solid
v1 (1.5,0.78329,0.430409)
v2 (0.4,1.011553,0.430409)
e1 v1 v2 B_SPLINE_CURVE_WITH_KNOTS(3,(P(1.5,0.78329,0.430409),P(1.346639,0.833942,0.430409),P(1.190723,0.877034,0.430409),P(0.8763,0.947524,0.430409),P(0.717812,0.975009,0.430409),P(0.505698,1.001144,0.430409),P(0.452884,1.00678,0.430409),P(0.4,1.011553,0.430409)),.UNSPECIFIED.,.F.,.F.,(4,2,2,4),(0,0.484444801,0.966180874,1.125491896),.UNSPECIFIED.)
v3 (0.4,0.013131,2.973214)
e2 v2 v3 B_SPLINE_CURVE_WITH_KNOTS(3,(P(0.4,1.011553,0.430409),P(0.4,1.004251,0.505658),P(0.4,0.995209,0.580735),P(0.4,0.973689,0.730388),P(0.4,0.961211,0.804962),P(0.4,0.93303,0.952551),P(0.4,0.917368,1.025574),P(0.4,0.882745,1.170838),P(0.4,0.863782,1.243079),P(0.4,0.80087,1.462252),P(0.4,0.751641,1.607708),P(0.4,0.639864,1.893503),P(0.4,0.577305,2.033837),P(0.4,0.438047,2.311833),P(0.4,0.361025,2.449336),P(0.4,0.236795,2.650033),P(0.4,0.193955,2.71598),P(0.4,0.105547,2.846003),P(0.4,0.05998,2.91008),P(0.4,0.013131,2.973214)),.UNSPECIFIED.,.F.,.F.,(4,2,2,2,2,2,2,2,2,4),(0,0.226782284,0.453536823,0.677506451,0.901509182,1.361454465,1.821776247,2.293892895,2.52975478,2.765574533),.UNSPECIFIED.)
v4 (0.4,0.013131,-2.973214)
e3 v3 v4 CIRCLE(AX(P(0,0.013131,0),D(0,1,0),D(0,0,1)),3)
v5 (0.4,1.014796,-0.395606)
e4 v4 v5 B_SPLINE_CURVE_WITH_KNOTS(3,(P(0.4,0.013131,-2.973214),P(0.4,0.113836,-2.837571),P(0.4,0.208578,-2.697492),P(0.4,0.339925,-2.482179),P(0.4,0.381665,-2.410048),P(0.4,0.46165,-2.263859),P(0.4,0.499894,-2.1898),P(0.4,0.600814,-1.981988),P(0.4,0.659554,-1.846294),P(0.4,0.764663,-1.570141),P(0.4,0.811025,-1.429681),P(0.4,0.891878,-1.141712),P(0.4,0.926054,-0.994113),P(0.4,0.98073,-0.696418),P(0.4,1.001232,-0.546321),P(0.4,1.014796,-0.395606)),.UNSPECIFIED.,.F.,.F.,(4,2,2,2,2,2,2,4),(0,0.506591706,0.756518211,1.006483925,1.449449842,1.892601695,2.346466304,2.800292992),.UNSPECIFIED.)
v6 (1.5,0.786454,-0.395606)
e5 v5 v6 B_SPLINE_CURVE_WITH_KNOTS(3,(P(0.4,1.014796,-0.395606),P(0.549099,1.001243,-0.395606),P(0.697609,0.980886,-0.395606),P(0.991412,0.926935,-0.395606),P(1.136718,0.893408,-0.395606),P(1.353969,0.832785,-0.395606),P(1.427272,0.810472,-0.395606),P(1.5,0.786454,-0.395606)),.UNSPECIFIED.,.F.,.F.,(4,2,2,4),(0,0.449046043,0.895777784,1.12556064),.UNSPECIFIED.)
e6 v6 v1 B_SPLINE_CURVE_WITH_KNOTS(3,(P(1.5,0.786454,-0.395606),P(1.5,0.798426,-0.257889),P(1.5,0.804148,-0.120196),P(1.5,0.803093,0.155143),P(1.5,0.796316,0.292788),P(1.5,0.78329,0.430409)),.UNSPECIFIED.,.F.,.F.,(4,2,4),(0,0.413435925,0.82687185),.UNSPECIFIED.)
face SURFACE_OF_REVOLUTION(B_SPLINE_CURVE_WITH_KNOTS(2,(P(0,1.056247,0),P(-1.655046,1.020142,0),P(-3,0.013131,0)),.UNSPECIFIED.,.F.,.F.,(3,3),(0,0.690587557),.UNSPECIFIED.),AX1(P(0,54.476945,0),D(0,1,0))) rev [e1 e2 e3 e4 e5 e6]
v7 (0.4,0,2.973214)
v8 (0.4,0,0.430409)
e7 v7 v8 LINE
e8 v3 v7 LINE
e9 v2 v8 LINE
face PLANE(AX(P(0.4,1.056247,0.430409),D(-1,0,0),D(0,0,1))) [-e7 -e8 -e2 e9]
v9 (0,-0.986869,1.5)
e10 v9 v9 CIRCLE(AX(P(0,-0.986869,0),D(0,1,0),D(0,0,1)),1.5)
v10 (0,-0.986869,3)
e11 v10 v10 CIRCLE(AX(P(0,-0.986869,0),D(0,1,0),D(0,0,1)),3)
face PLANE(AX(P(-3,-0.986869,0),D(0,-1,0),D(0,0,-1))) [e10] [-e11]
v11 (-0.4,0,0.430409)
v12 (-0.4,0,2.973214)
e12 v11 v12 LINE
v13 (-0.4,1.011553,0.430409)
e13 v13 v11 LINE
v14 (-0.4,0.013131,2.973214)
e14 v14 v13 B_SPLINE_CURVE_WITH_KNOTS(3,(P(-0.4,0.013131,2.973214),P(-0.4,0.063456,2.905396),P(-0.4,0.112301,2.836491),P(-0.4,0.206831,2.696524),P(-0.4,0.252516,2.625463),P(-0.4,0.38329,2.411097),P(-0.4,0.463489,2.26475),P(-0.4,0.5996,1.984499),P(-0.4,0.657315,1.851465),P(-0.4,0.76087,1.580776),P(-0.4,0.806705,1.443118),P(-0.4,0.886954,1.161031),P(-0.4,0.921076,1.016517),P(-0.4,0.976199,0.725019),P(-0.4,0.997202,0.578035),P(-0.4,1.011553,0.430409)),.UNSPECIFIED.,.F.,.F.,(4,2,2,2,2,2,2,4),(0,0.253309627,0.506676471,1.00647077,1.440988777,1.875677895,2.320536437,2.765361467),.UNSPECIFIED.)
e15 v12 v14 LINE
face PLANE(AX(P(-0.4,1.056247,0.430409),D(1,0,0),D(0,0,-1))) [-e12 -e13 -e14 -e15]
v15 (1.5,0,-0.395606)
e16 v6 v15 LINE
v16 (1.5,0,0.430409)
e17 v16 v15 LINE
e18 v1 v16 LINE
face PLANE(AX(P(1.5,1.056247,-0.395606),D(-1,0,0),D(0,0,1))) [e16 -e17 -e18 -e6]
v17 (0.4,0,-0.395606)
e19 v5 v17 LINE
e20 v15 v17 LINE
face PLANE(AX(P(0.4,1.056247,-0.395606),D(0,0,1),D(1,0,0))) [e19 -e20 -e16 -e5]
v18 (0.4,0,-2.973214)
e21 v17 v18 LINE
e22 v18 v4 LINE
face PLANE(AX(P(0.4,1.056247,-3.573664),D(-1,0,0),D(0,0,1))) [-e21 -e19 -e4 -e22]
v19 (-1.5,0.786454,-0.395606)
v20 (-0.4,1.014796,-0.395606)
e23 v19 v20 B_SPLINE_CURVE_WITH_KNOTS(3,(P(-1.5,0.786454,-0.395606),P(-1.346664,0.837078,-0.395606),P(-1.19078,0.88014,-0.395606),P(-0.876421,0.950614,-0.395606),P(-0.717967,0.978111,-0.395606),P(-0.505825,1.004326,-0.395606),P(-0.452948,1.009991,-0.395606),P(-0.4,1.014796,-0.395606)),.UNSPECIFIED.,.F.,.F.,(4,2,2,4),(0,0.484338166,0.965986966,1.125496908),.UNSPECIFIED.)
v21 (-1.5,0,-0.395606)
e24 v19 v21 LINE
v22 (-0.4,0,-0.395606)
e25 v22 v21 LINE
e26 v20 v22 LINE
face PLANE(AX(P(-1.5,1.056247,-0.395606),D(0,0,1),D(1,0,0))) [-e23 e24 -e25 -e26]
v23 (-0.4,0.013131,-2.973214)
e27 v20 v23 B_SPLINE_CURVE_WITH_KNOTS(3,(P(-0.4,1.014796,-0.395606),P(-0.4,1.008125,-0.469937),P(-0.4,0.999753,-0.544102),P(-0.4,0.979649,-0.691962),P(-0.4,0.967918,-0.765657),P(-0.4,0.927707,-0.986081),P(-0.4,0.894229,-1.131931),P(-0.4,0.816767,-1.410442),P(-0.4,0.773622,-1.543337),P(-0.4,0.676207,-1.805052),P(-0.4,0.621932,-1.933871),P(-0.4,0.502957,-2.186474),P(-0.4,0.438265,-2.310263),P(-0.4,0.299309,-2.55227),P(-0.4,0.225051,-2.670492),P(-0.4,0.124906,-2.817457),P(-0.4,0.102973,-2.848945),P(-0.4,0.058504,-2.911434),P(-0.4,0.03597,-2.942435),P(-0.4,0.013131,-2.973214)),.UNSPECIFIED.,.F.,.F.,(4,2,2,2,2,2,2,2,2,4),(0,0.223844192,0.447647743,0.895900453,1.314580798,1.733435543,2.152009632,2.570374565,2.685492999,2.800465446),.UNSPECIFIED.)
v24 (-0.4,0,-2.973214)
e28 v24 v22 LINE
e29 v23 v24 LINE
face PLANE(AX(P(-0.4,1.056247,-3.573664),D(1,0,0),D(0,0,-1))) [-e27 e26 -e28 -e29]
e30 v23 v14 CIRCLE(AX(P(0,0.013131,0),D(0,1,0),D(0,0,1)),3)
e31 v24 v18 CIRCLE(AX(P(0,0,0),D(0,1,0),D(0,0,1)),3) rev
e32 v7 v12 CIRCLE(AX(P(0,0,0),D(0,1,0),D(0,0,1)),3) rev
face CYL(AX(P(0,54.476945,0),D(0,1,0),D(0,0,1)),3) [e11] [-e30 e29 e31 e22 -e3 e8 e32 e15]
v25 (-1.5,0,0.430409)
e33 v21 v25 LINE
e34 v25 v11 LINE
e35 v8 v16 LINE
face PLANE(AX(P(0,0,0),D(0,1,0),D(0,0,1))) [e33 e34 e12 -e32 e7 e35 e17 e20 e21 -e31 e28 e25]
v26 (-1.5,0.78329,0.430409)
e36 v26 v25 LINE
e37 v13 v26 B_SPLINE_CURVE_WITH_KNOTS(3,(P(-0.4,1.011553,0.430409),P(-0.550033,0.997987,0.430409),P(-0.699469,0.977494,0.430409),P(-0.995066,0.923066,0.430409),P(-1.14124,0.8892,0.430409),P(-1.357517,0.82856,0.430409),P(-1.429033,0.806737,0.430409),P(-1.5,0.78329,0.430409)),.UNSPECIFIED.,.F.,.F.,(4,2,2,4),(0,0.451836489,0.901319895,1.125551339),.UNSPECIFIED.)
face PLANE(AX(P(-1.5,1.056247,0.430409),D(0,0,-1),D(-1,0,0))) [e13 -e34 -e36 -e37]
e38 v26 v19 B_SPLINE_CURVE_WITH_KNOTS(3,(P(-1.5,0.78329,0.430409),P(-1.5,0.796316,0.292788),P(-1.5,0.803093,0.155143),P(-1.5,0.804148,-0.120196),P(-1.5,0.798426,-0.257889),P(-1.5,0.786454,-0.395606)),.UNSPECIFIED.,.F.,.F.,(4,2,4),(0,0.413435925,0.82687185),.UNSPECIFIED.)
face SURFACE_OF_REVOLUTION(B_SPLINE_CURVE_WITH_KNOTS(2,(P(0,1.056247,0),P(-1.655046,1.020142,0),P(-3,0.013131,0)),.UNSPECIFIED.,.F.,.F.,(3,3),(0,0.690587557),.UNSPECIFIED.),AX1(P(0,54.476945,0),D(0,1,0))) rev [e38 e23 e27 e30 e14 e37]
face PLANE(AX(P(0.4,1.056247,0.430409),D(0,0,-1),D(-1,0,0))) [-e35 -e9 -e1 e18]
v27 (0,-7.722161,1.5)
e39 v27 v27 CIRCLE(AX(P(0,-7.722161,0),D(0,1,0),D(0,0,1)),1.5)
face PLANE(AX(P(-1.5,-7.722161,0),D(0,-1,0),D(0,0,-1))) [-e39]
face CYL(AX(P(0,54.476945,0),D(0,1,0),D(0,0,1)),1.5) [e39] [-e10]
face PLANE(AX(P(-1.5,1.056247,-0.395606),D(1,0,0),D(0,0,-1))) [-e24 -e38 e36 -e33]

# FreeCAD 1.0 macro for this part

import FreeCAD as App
import Part
import Sketcher

V = App.Vector


def add_polygon(sketch, points):
    """Adds a closed chain of lines whose ends are joined by coincident constraints."""
    first, n = sketch.GeometryCount, len(points)
    for a, b in zip(points, points[1:] + points[:1]):
        sketch.addGeometry(Part.LineSegment(App.Vector(*a, 0), App.Vector(*b, 0)), False)
    for i in range(n):
        sketch.addConstraint(Sketcher.Constraint("Coincident", first + i, 2, first + (i + 1) % n, 1))

doc = App.newDocument("Part")
body = doc.addObject("PartDesign::Body", "Body")

sketch1 = body.newObject("Sketcher::SketchObject", "Sketch")
sketch1.AttachmentSupport = (doc.getObject("XY_Plane"), [""])
sketch1.MapMode = "FlatFace"
sketch1.addGeometry([
    Part.LineSegment(V(-3, -0.986869, 0), V(-1.5, -0.986869, 0)),
    Part.LineSegment(V(-1.5, -0.986869, 0), V(-1.5, -7.722161, 0)),
    Part.LineSegment(V(-1.5, -7.722161, 0), V(0, -7.722161, 0)),
    Part.LineSegment(V(0, -7.722161, 0), V(0, 1.056247, 0)),
    Part.BSplineCurve([V(-3, 0.013131, 0), V(-1.655046, 1.020142, 0), V(0, 1.056247, 0)], [3, 3], [0, 0.690587557], False, 2, [1, 1, 1], False),
    Part.LineSegment(V(-3, 0.013131, 0), V(-3, -0.986869, 0)),
], False)
sketch1.addConstraint([
    Sketcher.Constraint("Block", 4),
    Sketcher.Constraint("Coincident", 0, 2, 1, 1),
    Sketcher.Constraint("Coincident", 1, 2, 2, 1),
    Sketcher.Constraint("Coincident", 2, 2, 3, 1),
    Sketcher.Constraint("Coincident", 3, 2, 4, 2),
    Sketcher.Constraint("Coincident", 4, 1, 5, 1),
    Sketcher.Constraint("Coincident", 5, 2, 0, 1),
    Sketcher.Constraint("Horizontal", 0),
    Sketcher.Constraint("Vertical", 1),
    Sketcher.Constraint("Horizontal", 2),
    Sketcher.Constraint("Vertical", 3),
    Sketcher.Constraint("Vertical", 5),
    Sketcher.Constraint("Equal", 0, 2),
    Sketcher.Constraint("DistanceY", 5, 2, 5, 1, 1.0),
    Sketcher.Constraint("DistanceY", 3, 1, 3, 2, 8.778408),
])
revolution = body.newObject("PartDesign::Revolution", "Revolution")
revolution.Profile = sketch1
revolution.ReferenceAxis = (sketch1, ["V_Axis"])
revolution.Angle = 360

sketch2 = body.newObject("Sketcher::SketchObject", "Sketch001")
sketch2.AttachmentSupport = (doc.getObject("XZ_Plane"), [""])
sketch2.MapMode = "FlatFace"
add_polygon(sketch2, [(0.4, -3.573664), (-0.4, -3.573664), (-0.4, -0.395606), (-1.5, -0.395606), (-1.5, 0.430409), (-0.4, 0.430409), (-0.4, 3.412464), (0.4, 3.412464), (0.4, 0.430409), (1.5, 0.430409), (1.5, -0.395606), (0.4, -0.395606)])
sketch2.addConstraint([
    Sketcher.Constraint("Horizontal", 0),
    Sketcher.Constraint("Vertical", 1),
    Sketcher.Constraint("Horizontal", 2),
    Sketcher.Constraint("Vertical", 3),
    Sketcher.Constraint("Horizontal", 4),
    Sketcher.Constraint("Vertical", 5),
    Sketcher.Constraint("Horizontal", 6),
    Sketcher.Constraint("Vertical", 7),
    Sketcher.Constraint("Horizontal", 8),
    Sketcher.Constraint("Vertical", 9),
    Sketcher.Constraint("Horizontal", 10),
    Sketcher.Constraint("Vertical", 11),
    Sketcher.Constraint("Symmetric", 4, 2, 7, 2, -2),
    Sketcher.Constraint("Symmetric", 2, 2, 9, 2, -2),
    Sketcher.Constraint("Vertical", 1, 2, 4, 2),
    Sketcher.Constraint("Vertical", 7, 2, 10, 2),
    Sketcher.Constraint("DistanceX", 0, 2, 0, 1, 0.8),
    Sketcher.Constraint("DistanceX", 2, 2, 2, 1, 1.1),
    Sketcher.Constraint("DistanceY", 1, 1, 1, 2, 3.178058),
    Sketcher.Constraint("DistanceY", 3, 1, 3, 2, 0.826015),
    Sketcher.Constraint("DistanceY", 5, 1, 5, 2, 2.982055),
    Sketcher.Constraint("DistanceY", -1, 1, 3, 2, 0.430409),
])
pocket1 = body.newObject("PartDesign::Pocket", "Pocket")
pocket1.Profile = sketch2
pocket1.Type = "ThroughAll"

doc.recompute()
